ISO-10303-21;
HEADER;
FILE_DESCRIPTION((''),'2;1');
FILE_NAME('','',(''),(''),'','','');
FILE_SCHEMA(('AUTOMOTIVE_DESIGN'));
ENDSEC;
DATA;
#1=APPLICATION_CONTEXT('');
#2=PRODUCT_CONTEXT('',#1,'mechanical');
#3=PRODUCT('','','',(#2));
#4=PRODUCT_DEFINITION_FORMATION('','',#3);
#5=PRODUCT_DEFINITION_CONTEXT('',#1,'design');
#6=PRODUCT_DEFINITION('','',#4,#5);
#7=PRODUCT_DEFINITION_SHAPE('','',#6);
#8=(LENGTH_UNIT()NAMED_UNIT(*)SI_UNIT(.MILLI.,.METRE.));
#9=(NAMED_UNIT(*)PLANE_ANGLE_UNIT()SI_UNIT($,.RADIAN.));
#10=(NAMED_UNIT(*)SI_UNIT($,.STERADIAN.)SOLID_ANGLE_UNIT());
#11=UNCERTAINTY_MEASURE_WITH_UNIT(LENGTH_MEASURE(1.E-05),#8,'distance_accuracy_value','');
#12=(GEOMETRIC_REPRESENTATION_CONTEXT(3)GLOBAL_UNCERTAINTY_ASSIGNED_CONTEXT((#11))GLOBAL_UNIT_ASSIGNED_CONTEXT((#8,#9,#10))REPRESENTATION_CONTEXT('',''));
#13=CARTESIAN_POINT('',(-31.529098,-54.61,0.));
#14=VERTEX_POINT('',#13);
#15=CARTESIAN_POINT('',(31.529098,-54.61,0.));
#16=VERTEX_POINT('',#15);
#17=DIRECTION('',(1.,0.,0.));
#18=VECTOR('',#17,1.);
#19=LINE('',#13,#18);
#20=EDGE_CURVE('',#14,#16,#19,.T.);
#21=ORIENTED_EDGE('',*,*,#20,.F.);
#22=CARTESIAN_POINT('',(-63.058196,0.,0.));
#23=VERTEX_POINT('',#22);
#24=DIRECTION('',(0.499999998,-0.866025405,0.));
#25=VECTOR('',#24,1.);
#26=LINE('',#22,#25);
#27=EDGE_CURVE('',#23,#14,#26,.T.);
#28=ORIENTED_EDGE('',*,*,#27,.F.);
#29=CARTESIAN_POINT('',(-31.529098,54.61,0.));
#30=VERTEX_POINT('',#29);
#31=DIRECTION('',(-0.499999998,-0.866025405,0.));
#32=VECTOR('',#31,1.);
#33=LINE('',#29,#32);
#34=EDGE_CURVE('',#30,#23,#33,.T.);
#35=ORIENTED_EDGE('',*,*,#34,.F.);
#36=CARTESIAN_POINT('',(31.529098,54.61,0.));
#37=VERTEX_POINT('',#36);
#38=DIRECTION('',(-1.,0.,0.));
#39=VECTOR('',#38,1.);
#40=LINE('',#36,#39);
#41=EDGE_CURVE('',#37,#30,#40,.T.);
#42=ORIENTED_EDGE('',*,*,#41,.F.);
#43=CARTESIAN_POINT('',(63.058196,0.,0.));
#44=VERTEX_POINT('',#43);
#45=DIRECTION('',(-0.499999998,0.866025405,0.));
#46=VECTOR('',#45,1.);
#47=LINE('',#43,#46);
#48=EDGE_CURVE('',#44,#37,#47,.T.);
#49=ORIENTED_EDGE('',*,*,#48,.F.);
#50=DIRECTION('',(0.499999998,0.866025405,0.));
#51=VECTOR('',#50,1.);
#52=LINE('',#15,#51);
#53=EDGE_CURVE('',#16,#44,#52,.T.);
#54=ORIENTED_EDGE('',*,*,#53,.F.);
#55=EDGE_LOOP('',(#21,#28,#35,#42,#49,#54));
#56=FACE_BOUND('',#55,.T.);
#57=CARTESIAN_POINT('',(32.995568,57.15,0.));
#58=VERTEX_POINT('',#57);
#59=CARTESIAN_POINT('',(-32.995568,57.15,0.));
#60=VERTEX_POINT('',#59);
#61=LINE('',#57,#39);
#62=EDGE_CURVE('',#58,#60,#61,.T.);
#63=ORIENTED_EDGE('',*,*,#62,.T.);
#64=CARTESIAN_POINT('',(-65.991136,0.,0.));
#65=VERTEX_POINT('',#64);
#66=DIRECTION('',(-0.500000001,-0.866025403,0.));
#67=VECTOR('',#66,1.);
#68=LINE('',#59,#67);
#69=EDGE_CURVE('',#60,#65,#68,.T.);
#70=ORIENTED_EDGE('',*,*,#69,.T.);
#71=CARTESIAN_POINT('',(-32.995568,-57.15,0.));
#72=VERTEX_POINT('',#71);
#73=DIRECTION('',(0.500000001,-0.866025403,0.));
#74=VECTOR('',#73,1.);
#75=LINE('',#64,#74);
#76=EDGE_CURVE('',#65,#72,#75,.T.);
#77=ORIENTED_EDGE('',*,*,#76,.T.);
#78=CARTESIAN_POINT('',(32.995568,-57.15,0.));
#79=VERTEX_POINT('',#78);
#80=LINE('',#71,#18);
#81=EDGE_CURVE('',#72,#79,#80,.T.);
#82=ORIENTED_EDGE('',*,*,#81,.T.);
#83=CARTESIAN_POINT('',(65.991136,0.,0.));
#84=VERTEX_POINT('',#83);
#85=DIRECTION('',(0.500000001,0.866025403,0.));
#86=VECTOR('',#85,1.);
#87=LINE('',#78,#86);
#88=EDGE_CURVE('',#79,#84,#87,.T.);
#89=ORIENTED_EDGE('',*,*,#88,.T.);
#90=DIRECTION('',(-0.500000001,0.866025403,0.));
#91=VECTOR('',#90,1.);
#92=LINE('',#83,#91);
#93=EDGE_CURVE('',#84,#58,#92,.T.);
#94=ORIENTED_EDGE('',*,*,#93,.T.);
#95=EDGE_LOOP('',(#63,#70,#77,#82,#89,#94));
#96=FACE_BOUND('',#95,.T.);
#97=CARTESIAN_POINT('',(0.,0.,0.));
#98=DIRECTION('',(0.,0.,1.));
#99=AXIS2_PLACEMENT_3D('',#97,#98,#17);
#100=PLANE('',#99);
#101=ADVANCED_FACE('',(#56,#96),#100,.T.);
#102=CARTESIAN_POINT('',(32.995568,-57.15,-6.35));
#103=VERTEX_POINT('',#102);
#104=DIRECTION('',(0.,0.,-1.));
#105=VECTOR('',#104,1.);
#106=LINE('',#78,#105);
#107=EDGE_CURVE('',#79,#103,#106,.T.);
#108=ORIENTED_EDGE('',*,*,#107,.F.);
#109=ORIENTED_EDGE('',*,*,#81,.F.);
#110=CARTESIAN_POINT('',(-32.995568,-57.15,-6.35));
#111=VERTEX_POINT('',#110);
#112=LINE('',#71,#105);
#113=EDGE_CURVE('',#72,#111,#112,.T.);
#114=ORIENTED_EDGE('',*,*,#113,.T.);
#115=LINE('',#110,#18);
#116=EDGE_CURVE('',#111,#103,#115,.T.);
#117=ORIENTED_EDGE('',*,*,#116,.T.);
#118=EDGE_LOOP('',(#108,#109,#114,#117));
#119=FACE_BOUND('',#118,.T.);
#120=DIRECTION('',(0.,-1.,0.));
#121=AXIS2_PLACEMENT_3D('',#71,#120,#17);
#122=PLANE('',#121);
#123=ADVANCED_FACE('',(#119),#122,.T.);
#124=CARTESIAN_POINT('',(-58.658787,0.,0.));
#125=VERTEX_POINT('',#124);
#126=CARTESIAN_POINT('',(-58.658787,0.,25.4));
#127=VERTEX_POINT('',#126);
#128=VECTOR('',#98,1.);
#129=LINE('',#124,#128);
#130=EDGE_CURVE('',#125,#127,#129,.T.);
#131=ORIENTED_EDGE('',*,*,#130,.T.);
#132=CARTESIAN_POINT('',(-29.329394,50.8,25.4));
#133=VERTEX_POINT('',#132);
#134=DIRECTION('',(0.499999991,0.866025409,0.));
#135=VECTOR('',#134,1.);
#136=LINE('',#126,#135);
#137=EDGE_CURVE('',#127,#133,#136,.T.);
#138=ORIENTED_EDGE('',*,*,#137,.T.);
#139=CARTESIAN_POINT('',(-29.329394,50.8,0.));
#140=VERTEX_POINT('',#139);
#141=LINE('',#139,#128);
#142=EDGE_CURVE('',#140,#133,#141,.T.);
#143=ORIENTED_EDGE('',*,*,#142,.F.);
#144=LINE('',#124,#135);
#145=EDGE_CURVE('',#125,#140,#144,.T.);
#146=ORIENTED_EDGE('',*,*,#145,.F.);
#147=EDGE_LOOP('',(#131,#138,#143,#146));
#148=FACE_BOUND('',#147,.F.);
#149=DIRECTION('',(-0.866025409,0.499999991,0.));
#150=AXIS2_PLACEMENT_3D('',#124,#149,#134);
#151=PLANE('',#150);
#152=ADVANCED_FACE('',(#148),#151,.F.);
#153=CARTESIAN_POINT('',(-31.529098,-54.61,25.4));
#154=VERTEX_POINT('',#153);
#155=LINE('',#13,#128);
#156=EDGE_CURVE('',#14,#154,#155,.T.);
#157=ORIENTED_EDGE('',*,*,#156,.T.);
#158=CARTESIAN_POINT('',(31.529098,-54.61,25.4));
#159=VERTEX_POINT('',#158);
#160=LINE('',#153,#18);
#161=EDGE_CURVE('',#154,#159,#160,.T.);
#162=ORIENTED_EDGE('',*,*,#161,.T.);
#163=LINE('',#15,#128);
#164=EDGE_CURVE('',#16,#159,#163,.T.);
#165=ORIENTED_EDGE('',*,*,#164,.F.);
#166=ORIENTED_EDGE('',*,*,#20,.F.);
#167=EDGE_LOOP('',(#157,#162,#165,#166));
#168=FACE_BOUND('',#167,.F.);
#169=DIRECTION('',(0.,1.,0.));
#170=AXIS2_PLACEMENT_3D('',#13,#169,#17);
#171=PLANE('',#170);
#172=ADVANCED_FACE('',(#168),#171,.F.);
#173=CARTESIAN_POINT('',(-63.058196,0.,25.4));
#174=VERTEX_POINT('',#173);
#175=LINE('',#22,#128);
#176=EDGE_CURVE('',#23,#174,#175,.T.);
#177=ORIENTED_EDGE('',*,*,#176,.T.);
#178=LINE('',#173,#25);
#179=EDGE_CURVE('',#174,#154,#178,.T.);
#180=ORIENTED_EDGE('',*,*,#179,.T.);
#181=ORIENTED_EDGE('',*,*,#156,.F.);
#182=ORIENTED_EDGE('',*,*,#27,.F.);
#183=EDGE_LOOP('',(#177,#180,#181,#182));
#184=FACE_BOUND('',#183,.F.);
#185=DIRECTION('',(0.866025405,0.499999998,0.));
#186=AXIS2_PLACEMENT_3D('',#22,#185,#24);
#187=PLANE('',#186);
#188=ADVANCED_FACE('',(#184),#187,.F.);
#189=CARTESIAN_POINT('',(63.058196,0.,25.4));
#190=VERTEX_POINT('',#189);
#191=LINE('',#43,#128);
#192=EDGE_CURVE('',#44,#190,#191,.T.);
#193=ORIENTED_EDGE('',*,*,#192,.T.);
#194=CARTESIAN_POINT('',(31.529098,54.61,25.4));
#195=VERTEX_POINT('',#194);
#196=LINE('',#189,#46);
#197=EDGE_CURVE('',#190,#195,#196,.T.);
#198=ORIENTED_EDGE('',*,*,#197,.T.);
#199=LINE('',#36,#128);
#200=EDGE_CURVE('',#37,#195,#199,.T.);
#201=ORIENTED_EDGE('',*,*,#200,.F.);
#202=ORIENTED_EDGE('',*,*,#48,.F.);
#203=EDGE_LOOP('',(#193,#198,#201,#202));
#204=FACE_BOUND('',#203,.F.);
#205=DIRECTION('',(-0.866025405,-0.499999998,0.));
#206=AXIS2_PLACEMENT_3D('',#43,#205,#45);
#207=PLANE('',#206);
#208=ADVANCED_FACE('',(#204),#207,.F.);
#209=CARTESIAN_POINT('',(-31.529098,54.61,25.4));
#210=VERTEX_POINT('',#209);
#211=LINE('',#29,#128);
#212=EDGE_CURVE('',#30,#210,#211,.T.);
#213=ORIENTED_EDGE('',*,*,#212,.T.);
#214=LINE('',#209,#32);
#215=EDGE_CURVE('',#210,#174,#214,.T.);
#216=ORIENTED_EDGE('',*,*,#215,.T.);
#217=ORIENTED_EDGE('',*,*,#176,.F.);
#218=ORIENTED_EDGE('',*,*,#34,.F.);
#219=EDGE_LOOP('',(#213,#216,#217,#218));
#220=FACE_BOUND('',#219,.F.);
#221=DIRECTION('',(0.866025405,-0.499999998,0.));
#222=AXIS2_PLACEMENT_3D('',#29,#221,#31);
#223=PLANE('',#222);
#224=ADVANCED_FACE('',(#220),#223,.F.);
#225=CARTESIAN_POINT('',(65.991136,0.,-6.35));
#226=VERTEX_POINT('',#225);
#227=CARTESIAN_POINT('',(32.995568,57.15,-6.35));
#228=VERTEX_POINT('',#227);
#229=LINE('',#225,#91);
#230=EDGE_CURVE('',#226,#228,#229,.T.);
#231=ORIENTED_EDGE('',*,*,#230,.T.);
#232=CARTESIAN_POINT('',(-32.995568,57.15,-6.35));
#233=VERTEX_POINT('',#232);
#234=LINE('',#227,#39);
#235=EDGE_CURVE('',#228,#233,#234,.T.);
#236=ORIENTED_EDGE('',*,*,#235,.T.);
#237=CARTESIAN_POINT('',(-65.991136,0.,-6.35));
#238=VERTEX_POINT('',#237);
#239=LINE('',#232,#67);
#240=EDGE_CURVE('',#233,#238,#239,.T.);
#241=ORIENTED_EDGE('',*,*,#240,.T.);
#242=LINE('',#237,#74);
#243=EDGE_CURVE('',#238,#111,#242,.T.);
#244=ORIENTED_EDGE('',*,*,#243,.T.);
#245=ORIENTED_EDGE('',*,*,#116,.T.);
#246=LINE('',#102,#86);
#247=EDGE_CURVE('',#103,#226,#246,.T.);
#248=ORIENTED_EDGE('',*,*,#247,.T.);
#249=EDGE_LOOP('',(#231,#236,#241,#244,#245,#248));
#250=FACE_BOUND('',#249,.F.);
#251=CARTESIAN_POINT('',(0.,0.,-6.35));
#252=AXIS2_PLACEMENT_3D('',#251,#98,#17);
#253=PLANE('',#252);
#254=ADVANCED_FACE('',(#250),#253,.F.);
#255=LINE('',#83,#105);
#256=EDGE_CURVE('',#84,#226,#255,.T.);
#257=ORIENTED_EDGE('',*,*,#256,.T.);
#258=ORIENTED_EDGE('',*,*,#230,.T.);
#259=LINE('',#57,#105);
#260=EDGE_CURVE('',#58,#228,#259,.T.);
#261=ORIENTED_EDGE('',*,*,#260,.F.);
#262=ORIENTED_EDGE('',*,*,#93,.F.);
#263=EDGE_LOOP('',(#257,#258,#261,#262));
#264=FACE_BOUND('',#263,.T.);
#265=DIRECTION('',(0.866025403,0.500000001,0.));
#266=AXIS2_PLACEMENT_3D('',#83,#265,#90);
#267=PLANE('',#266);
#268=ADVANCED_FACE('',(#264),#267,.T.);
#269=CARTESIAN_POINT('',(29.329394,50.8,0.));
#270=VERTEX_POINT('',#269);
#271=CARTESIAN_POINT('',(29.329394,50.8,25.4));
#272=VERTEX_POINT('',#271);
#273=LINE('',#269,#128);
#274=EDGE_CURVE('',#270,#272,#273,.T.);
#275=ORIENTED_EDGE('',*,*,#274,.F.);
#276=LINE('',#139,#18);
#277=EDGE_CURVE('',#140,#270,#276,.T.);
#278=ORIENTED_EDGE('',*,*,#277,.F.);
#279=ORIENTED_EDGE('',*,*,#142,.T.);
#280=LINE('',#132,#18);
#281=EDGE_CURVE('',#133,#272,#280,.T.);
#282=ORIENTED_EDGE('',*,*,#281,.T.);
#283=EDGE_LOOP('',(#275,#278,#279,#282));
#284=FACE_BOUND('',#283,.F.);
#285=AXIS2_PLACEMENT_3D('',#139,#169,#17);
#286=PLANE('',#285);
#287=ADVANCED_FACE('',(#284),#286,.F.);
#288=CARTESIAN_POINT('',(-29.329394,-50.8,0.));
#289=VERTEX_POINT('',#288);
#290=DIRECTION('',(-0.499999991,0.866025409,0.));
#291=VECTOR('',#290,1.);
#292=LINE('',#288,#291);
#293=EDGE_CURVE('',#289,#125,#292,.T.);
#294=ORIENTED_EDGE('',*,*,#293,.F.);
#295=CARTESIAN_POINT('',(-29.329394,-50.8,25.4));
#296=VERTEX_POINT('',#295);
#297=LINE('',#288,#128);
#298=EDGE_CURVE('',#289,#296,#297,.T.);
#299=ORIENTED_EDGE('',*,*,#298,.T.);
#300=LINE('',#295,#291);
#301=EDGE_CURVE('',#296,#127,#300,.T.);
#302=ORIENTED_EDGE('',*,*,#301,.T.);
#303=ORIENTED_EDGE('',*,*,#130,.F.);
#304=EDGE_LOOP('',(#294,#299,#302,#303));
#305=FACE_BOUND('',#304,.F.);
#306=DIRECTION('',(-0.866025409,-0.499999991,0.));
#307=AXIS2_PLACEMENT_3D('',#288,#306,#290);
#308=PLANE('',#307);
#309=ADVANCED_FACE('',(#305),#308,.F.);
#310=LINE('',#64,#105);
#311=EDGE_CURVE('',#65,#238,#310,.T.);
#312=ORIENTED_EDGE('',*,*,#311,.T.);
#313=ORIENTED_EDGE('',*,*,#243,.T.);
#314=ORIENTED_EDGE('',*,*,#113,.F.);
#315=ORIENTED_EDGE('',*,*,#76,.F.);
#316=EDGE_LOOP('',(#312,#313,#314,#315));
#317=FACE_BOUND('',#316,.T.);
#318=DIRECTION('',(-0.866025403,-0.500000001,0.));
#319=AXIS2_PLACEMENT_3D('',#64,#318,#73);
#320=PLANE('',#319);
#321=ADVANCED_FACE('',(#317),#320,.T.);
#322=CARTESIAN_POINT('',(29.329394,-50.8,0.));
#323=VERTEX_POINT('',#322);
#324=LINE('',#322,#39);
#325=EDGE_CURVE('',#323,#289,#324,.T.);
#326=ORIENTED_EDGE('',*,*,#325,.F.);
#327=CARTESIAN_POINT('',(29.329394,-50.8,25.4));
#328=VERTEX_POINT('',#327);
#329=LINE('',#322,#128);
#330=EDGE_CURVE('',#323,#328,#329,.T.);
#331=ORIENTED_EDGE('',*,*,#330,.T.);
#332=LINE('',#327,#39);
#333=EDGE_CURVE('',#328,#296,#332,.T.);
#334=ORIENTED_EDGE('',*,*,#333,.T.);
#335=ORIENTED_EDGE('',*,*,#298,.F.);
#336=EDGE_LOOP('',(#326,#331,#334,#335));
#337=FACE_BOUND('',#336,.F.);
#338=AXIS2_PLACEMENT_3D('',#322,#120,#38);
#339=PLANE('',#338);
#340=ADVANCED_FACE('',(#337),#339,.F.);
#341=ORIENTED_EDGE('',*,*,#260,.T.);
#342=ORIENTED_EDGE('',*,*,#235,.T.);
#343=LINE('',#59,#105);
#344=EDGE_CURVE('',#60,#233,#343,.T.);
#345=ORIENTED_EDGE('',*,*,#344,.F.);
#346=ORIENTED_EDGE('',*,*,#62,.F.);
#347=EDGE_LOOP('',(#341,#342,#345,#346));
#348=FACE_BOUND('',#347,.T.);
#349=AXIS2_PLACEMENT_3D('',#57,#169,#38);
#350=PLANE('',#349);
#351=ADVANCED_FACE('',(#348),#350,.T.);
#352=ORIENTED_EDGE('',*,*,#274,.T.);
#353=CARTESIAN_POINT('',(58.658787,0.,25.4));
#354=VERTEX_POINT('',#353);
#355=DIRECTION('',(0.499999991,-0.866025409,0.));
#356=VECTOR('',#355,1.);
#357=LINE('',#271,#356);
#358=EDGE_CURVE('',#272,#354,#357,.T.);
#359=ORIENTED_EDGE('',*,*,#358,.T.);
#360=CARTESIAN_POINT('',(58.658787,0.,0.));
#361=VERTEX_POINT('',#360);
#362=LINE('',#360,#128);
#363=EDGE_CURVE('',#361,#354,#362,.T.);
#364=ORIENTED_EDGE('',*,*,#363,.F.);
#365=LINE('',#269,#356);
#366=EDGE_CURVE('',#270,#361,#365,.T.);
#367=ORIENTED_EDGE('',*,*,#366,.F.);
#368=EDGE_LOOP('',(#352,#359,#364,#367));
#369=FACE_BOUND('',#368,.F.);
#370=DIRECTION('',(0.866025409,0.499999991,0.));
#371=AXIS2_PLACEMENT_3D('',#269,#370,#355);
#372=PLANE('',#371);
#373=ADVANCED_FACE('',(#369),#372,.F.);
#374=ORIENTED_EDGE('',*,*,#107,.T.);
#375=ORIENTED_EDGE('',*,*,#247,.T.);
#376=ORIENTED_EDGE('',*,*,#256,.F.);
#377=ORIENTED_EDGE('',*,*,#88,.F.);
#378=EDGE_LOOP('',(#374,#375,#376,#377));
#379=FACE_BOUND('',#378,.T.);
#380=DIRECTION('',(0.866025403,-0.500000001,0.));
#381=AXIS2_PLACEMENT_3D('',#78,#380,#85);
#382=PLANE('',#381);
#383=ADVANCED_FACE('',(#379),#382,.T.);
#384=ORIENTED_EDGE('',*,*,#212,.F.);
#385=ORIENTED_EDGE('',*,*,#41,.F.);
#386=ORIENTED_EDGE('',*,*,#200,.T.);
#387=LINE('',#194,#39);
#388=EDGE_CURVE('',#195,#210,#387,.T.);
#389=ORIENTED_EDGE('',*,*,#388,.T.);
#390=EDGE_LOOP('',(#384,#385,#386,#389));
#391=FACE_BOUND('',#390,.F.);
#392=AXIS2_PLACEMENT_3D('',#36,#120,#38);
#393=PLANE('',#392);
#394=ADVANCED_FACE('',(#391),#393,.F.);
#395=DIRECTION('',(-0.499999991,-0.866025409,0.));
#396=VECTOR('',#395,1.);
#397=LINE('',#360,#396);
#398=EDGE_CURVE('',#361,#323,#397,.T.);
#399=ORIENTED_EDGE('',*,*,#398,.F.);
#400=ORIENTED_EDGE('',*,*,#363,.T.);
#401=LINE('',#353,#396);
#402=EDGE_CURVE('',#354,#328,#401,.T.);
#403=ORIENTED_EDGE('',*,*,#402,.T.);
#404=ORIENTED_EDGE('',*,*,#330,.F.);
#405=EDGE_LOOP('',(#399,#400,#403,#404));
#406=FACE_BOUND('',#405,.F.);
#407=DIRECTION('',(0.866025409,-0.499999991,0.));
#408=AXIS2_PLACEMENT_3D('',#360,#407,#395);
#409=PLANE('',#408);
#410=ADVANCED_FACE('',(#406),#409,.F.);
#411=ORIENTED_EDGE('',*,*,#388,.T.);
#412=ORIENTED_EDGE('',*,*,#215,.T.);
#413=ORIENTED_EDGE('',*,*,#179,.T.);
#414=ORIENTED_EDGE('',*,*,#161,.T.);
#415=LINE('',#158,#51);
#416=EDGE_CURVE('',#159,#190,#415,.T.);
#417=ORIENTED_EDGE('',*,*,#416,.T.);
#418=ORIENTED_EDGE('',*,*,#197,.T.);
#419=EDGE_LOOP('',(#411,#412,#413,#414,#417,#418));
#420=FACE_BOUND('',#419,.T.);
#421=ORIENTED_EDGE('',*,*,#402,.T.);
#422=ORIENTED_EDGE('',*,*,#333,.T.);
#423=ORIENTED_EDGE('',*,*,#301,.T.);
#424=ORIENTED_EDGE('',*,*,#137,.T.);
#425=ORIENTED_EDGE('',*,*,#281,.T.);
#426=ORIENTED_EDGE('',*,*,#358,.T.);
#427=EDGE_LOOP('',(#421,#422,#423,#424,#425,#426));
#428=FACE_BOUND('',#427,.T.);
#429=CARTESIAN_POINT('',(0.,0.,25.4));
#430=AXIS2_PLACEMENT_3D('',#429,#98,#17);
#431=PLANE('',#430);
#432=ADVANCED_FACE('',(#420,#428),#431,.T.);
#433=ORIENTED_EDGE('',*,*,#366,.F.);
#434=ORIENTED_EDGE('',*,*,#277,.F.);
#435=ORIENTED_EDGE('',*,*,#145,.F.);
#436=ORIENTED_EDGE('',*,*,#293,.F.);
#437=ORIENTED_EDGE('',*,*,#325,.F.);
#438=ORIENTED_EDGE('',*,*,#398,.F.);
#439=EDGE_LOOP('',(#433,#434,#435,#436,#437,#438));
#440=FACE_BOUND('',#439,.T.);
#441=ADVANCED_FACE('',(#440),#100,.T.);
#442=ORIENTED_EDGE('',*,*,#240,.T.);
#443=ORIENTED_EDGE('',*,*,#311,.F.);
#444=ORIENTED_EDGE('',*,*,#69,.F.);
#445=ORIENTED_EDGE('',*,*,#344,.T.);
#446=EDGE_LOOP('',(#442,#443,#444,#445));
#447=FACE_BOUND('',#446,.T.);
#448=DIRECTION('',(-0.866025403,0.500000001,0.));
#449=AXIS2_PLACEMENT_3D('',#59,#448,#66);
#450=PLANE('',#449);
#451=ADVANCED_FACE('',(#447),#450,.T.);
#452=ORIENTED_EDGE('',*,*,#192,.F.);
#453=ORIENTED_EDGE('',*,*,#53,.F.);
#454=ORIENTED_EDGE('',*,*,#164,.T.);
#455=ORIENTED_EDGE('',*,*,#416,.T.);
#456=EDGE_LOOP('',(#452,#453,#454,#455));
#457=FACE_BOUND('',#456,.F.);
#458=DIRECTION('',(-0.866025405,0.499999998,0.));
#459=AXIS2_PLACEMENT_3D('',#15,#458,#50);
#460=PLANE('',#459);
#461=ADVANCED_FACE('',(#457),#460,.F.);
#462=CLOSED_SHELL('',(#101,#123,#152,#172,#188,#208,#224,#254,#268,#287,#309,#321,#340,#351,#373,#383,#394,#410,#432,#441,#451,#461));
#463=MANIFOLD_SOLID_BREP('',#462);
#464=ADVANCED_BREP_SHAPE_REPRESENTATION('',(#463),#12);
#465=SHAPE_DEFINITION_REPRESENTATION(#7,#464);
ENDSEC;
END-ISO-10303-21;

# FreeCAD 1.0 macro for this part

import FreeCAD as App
import Part
import Sketcher

V = App.Vector
Q = App.Units.Quantity


def add_polygon(sketch, points):
    """Adds a closed chain of lines whose ends are joined by coincident constraints."""
    first, n = sketch.GeometryCount, len(points)
    for a, b in zip(points, points[1:] + points[:1]):
        sketch.addGeometry(Part.LineSegment(App.Vector(*a, 0), App.Vector(*b, 0)), False)
    for i in range(n):
        sketch.addConstraint(Sketcher.Constraint("Coincident", first + i, 2, first + (i + 1) % n, 1))

doc = App.newDocument("Part")
body = doc.addObject("PartDesign::Body", "Body")

# Sketch on XY plane
sketch1 = body.newObject("Sketcher::SketchObject", "Sketch")
sketch1.AttachmentSupport = (doc.getObject("XY_Plane"), [""])
sketch1.MapMode = "FlatFace"
add_polygon(sketch1, [(33, -57), (66, 0), (33, 57), (-33, 57), (-66, 0), (-33, -57)])  # lines 0-5
sketch1.addConstraint(Sketcher.Constraint("Horizontal", 2))
sketch1.addConstraint(Sketcher.Constraint("Horizontal", 5))
sketch1.addConstraint(Sketcher.Constraint("Symmetric", 0, 2, 3, 2, -1, 1))
sketch1.addConstraint(Sketcher.Constraint("Symmetric", 1, 2, 4, 2, -1, 1))
sketch1.addConstraint(Sketcher.Constraint("PointOnObject", 0, 2, -1))
sketch1.addConstraint(Sketcher.Constraint("Parallel", 0, 3))
sketch1.addConstraint(Sketcher.Constraint("Vertical", 2, 2, 4, 2))
sketch1.addConstraint(Sketcher.Constraint("Angle", 0, Q("60 deg")))
sketch1.addConstraint(Sketcher.Constraint("DistanceY", 4, 2, 2, 2, Q("4.5 in")))
sketch1.addConstraint(Sketcher.Constraint("DistanceX", 2, 2, 2, 1, 65.991136))
pad1 = body.newObject("PartDesign::Pad", "Pad")
pad1.Profile = sketch1
pad1.Length = Q("0.25 in")
pad1.Reversed = True

# Sketch on XY plane
sketch2 = body.newObject("Sketcher::SketchObject", "Sketch001")
sketch2.AttachmentSupport = (doc.getObject("XY_Plane"), [""])
sketch2.MapMode = "FlatFace"
add_polygon(sketch2, [(32, -55), (63, 0), (32, 55), (-32, 55), (-63, 0), (-32, -55)])  # lines 0-5
add_polygon(sketch2, [(-29, 51), (29, 51), (59, 0), (29, -51), (-29, -51), (-59, 0)])  # lines 6-11
sketch2.addConstraint(Sketcher.Constraint("Horizontal", 2))
sketch2.addConstraint(Sketcher.Constraint("Horizontal", 5))
sketch2.addConstraint(Sketcher.Constraint("Horizontal", 6))
sketch2.addConstraint(Sketcher.Constraint("Horizontal", 9))
sketch2.addConstraint(Sketcher.Constraint("Symmetric", 0, 2, 3, 2, -1, 1))
sketch2.addConstraint(Sketcher.Constraint("Symmetric", 1, 2, 4, 2, -1, 1))
sketch2.addConstraint(Sketcher.Constraint("Symmetric", 6, 2, 9, 2, -1, 1))
sketch2.addConstraint(Sketcher.Constraint("Symmetric", 7, 2, 10, 2, -1, 1))
sketch2.addConstraint(Sketcher.Constraint("PointOnObject", 0, 2, -1))
sketch2.addConstraint(Sketcher.Constraint("PointOnObject", 7, 2, -1))
sketch2.addConstraint(Sketcher.Constraint("Parallel", 0, 3))
sketch2.addConstraint(Sketcher.Constraint("Parallel", 4, 7))
sketch2.addConstraint(Sketcher.Constraint("Parallel", 3, 8))
sketch2.addConstraint(Sketcher.Constraint("Parallel", 8, 11))
sketch2.addConstraint(Sketcher.Constraint("Vertical", 2, 2, 4, 2))
sketch2.addConstraint(Sketcher.Constraint("DistanceY", -1, 1, 6, 2, Q("2 in")))
sketch2.addConstraint(Sketcher.Constraint("Angle", 0, Q("60 deg")))
sketch2.addConstraint(Sketcher.Constraint("DistanceY", 4, 2, 2, 2, Q("4.3 in")))
sketch2.addConstraint(Sketcher.Constraint("DistanceX", -1, 1, 1, 2, 31.529098))
sketch2.addConstraint(Sketcher.Constraint("DistanceX", 6, 1, 6, 2, 58.658788))
pad2 = body.newObject("PartDesign::Pad", "Pad001")
pad2.Profile = sketch2
pad2.Length = Q("1 in")

doc.recompute()
